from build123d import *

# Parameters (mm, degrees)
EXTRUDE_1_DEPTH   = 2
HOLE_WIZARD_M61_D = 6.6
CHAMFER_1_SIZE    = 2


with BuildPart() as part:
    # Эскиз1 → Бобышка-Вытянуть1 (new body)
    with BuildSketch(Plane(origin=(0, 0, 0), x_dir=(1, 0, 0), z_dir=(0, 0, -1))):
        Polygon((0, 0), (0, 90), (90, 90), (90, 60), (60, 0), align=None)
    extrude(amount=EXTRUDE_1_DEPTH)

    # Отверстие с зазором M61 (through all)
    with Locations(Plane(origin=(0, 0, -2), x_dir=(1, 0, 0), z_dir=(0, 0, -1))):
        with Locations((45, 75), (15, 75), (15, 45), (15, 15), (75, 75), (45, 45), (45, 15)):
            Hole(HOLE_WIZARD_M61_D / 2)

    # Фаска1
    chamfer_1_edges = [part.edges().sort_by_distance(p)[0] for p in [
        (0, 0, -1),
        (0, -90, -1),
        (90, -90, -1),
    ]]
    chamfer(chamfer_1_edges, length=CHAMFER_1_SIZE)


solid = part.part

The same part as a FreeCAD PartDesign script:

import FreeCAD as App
import Part
import Sketcher
from FreeCAD import Vector
Q = App.Units.Quantity


def edges_at(feature, points):
    """Names of the edges that pass closest to the given points."""
    edges = feature.Shape.Edges
    near = lambda p: min(range(len(edges)), key=lambda i: edges[i].distToShape(Part.Vertex(*p))[0])
    return sorted({f"Edge{near(p) + 1}" for p in points})


def add_polygon(sketch, points):
    """Adds a closed chain of lines whose ends are joined by coincident constraints."""
    first, n = sketch.GeometryCount, len(points)
    for a, b in zip(points, points[1:] + points[:1]):
        sketch.addGeometry(Part.LineSegment(App.Vector(*a, 0), App.Vector(*b, 0)), False)
    for i in range(n):
        sketch.addConstraint(Sketcher.Constraint("Coincident", first + i, 2, first + (i + 1) % n, 1))

doc = App.newDocument("Part")
body = doc.addObject("PartDesign::Body", "Body")

# Sketch on XY plane
sketch1 = doc.addObject("Sketcher::SketchObject", "Sketch")
body.addObject(sketch1)
sketch1.AttachmentSupport = (doc.XY_Plane, [""])
sketch1.MapMode = "FlatFace"
add_polygon(sketch1, [(0, -90), (0, 0), (60, 0), (90, -60), (90, -90)])  # lines 0-4
sketch1.addConstraint(Sketcher.Constraint("Vertical", 0))
sketch1.addConstraint(Sketcher.Constraint("Horizontal", 1))
sketch1.addConstraint(Sketcher.Constraint("Vertical", 3))
sketch1.addConstraint(Sketcher.Constraint("Horizontal", 4))
sketch1.addConstraint(Sketcher.Constraint("Coincident", 0, 2, -1, 1))
sketch1.addConstraint(Sketcher.Constraint("Equal", 4, 0))
sketch1.addConstraint(Sketcher.Constraint("DistanceX", 1, 1, 1, 2, Q("60 mm")))
sketch1.addConstraint(Sketcher.Constraint("DistanceX", 4, 2, 4, 1, Q("90 mm")))
sketch1.addConstraint(Sketcher.Constraint("DistanceY", 3, 2, 3, 1, Q("30 mm")))
pad1 = doc.addObject("PartDesign::Pad", "Pad")
body.addObject(pad1)
pad1.Profile = sketch1
pad1.Length = 2
pad1.Reversed = True

# Sketch on XY plane
sketch2 = doc.addObject("Sketcher::SketchObject", "Sketch001")
body.addObject(sketch2)
sketch2.AttachmentSupport = (doc.XY_Plane, [""])
sketch2.MapMode = "FlatFace"
sketch2.AttachmentOffset = App.Placement(Vector(0, 0, -2), App.Rotation())
sketch2.addGeometry(Part.Circle(Vector(45, -75, 0), Vector(0, 0, 1), 3.3), False)
sketch2.addGeometry(Part.Circle(Vector(15, -75, 0), Vector(0, 0, 1), 3.3), False)
sketch2.addGeometry(Part.Circle(Vector(15, -45, 0), Vector(0, 0, 1), 3.3), False)
sketch2.addGeometry(Part.Circle(Vector(15, -15, 0), Vector(0, 0, 1), 3.3), False)
sketch2.addGeometry(Part.Circle(Vector(75, -75, 0), Vector(0, 0, 1), 3.3), False)
sketch2.addGeometry(Part.Circle(Vector(45, -45, 0), Vector(0, 0, 1), 3.3), False)
sketch2.addGeometry(Part.Circle(Vector(45, -15, 0), Vector(0, 0, 1), 3.3), False)
sketch2.addConstraint(Sketcher.Constraint("Equal", 0, 1))
sketch2.addConstraint(Sketcher.Constraint("Equal", 1, 2))
sketch2.addConstraint(Sketcher.Constraint("Equal", 2, 3))
sketch2.addConstraint(Sketcher.Constraint("Equal", 3, 4))
sketch2.addConstraint(Sketcher.Constraint("Equal", 4, 5))
sketch2.addConstraint(Sketcher.Constraint("Equal", 5, 6))
sketch2.addConstraint(Sketcher.Constraint("Horizontal", 0, 3, 1, 3))
sketch2.addConstraint(Sketcher.Constraint("Horizontal", 1, 3, 4, 3))
sketch2.addConstraint(Sketcher.Constraint("Horizontal", 2, 3, 5, 3))
sketch2.addConstraint(Sketcher.Constraint("Horizontal", 3, 3, 6, 3))
sketch2.addConstraint(Sketcher.Constraint("Vertical", 1, 3, 2, 3))
sketch2.addConstraint(Sketcher.Constraint("Vertical", 2, 3, 3, 3))
sketch2.addConstraint(Sketcher.Constraint("Vertical", 0, 3, 5, 3))
sketch2.addConstraint(Sketcher.Constraint("Vertical", 5, 3, 6, 3))
sketch2.addConstraint(Sketcher.Constraint("Diameter", 0, Q("6.6 mm")))
sketch2.addConstraint(Sketcher.Constraint("DistanceX", -1, 1, 0, 3, Q("45 mm")))
sketch2.addConstraint(Sketcher.Constraint("DistanceY", 0, 3, -1, 1, Q("75 mm")))
sketch2.addConstraint(Sketcher.Constraint("DistanceX", -1, 1, 1, 3, Q("15 mm")))
sketch2.addConstraint(Sketcher.Constraint("DistanceY", 2, 3, -1, 1, Q("45 mm")))
sketch2.addConstraint(Sketcher.Constraint("DistanceY", 3, 3, -1, 1, Q("15 mm")))
sketch2.addConstraint(Sketcher.Constraint("DistanceX", -1, 1, 4, 3, Q("75 mm")))
doc.recompute()
hole = doc.addObject("PartDesign::Hole", "Hole")
body.addObject(hole)
hole.Profile = sketch2
hole.ThreadType = "None"
hole.Diameter = 6.6
hole.DepthType = "ThroughAll"
hole.Reversed = True
doc.recompute()

chamfer = doc.addObject("PartDesign::Chamfer", "Chamfer")
body.addObject(chamfer)
chamfer.Base = (hole, edges_at(hole, [(0, 0, -1), (0, -90, -1), (90, -90, -1)]))
chamfer.Size = 2

doc.recompute()
